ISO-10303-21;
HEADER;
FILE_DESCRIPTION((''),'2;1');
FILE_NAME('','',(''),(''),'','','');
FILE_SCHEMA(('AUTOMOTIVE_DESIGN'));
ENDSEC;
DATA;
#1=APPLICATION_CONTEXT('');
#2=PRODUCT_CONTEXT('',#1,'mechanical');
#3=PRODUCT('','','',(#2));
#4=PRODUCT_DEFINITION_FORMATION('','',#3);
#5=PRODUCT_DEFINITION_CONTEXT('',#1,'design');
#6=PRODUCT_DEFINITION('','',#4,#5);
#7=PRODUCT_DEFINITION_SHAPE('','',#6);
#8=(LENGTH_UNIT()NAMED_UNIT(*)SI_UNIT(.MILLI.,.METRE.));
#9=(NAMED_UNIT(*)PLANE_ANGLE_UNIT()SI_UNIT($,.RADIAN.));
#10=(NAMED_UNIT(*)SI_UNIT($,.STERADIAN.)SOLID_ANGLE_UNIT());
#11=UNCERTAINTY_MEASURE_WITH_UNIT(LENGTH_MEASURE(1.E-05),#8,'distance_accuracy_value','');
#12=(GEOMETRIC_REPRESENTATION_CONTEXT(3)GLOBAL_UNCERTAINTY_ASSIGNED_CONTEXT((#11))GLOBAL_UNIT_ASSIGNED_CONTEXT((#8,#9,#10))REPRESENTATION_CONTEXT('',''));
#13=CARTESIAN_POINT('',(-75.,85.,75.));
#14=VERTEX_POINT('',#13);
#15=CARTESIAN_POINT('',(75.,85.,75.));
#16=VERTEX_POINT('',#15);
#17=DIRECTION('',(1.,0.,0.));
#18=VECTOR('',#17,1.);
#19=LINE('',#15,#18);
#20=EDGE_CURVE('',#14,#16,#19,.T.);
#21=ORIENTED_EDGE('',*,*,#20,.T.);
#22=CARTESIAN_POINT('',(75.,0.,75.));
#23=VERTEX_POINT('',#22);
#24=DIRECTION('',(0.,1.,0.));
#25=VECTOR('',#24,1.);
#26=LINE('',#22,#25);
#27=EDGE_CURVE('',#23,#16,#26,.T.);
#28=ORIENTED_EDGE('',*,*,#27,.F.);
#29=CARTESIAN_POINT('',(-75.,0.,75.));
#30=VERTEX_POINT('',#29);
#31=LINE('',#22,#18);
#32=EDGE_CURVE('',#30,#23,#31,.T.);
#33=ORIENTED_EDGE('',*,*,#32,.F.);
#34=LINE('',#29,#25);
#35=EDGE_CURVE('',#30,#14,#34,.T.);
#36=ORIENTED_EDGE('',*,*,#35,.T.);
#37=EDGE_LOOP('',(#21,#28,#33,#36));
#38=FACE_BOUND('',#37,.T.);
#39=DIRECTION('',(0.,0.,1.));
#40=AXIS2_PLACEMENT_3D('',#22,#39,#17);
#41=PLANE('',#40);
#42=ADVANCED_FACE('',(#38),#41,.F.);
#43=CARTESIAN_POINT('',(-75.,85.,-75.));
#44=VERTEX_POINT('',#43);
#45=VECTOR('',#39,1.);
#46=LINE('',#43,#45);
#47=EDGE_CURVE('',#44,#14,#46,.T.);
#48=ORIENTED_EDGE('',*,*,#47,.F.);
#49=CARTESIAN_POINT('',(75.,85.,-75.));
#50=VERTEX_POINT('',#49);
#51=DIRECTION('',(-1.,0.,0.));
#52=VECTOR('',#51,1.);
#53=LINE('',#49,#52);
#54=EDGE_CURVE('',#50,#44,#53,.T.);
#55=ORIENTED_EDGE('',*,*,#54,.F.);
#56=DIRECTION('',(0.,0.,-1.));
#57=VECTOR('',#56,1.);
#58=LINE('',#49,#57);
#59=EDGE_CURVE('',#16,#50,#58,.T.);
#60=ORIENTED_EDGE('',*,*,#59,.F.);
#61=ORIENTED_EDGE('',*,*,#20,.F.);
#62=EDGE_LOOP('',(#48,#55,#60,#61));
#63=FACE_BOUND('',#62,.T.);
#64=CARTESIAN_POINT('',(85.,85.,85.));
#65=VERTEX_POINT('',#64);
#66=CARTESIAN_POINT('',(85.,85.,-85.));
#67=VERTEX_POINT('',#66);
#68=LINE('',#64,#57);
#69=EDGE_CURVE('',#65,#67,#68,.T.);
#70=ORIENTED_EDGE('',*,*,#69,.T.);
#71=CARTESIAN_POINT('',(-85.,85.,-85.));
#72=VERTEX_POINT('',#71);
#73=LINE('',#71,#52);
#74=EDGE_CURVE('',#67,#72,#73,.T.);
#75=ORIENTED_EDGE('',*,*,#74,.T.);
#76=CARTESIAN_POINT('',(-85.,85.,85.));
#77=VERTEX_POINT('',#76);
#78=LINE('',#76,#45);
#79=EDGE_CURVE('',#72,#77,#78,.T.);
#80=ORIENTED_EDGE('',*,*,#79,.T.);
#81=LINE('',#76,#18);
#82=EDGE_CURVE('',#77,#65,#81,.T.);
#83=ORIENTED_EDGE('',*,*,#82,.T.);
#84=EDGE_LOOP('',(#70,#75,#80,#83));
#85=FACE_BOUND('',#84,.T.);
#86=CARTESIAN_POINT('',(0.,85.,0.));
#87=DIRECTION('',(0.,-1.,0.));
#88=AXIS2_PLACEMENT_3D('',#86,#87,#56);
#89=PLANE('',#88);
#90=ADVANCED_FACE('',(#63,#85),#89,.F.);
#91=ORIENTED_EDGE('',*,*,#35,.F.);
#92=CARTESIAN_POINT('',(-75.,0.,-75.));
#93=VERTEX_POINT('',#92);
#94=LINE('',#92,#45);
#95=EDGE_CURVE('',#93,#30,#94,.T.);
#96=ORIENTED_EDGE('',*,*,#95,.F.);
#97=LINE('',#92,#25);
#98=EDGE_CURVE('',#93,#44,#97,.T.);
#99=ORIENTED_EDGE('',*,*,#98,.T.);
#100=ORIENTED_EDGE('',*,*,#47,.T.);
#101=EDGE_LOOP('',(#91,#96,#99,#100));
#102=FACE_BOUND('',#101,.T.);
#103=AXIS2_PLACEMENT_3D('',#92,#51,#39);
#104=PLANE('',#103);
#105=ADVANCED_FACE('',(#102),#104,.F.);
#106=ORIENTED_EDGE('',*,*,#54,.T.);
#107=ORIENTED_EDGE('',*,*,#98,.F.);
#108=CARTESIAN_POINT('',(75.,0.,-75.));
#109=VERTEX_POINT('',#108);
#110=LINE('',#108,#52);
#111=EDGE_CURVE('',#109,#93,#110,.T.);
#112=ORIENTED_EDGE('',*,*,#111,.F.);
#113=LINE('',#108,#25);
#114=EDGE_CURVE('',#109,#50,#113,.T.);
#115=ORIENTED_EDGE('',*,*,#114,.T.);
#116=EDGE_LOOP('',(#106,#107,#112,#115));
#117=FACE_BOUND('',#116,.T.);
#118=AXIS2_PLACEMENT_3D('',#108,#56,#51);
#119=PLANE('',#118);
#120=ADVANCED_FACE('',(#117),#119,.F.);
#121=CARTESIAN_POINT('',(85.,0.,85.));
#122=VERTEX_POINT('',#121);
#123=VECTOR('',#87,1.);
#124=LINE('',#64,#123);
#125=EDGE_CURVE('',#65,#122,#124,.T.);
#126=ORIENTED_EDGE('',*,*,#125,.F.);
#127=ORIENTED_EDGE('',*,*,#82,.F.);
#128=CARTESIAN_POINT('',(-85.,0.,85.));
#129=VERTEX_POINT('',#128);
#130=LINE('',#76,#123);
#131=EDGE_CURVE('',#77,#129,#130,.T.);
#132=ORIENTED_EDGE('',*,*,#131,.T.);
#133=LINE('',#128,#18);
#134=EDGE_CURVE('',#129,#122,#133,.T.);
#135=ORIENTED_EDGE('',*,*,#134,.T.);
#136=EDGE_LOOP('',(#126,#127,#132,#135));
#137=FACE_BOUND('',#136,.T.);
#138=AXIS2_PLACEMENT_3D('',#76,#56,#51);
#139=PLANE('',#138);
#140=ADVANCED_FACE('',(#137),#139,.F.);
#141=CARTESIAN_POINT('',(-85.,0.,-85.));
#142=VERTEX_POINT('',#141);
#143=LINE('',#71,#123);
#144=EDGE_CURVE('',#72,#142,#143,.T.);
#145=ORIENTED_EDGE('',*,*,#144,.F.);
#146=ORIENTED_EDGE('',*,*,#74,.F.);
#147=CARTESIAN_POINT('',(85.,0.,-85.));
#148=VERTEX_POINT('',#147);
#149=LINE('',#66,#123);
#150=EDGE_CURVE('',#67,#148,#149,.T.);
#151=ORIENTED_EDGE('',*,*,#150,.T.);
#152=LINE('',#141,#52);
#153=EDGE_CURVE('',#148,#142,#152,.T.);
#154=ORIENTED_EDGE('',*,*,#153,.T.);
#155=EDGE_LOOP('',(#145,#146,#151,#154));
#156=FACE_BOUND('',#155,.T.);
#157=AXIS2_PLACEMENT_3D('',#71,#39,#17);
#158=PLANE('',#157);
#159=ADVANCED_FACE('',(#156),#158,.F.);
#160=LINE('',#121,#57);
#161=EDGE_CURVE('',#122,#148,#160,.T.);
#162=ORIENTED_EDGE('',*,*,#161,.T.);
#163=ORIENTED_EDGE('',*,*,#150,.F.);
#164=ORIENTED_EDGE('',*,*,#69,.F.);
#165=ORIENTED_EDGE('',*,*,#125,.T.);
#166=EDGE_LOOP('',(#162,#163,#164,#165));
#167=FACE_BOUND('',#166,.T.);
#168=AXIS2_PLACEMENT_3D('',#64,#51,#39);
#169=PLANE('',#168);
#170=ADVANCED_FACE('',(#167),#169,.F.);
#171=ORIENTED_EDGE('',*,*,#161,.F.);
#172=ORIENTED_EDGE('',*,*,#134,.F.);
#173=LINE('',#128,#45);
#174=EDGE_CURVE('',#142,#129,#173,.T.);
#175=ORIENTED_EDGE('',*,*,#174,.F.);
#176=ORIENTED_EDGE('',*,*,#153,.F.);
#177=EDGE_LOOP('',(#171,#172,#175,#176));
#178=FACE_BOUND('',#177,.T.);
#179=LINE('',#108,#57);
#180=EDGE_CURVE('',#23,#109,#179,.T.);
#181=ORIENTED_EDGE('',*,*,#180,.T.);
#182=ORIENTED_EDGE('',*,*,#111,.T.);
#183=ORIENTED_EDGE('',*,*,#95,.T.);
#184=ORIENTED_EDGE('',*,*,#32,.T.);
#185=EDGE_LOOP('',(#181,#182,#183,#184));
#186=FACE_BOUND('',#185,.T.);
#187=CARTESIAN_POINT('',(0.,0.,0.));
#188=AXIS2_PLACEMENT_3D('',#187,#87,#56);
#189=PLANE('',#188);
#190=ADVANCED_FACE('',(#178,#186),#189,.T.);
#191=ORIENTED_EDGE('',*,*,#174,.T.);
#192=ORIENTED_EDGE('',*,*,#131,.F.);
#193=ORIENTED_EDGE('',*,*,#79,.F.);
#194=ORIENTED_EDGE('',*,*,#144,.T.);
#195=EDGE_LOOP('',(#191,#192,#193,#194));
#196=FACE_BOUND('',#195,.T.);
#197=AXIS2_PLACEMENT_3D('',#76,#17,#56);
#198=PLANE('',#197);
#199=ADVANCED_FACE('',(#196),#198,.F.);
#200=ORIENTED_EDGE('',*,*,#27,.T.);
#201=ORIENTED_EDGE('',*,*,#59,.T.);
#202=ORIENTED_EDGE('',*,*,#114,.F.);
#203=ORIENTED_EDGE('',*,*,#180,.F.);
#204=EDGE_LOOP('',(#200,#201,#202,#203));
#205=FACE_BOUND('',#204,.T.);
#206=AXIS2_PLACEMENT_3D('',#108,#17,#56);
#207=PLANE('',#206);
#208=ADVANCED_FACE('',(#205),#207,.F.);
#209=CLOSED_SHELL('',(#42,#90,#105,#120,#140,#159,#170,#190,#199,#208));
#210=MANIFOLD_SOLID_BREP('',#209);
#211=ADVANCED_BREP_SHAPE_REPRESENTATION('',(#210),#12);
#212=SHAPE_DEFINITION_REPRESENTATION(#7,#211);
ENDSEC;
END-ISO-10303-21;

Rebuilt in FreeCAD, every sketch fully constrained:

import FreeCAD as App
import Part
import Sketcher

V = App.Vector
Q = App.Units.Quantity

doc = App.newDocument("Part")
body = doc.addObject("PartDesign::Body", "Body")

# Sketch on XZ plane
sketch1 = doc.addObject("Sketcher::SketchObject", "Sketch")
body.addObject(sketch1)
sketch1.AttachmentSupport = (doc.XZ_Plane, [""])
sketch1.MapMode = "FlatFace"
sketch1.addGeometry(Part.LineSegment(V(-85, -85, 0), V(-85, 85, 0)), False)
sketch1.addGeometry(Part.LineSegment(V(-85, 85, 0), V(85, 85, 0)), False)
sketch1.addGeometry(Part.LineSegment(V(85, 85, 0), V(85, -85, 0)), False)
sketch1.addGeometry(Part.LineSegment(V(85, -85, 0), V(-85, -85, 0)), False)
sketch1.addConstraint(Sketcher.Constraint("Coincident", 0, 2, 1, 1))
sketch1.addConstraint(Sketcher.Constraint("Coincident", 1, 2, 2, 1))
sketch1.addConstraint(Sketcher.Constraint("Coincident", 2, 2, 3, 1))
sketch1.addConstraint(Sketcher.Constraint("Coincident", 3, 2, 0, 1))
sketch1.addConstraint(Sketcher.Constraint("Vertical", 0))
sketch1.addConstraint(Sketcher.Constraint("Horizontal", 1))
sketch1.addConstraint(Sketcher.Constraint("Vertical", 2))
sketch1.addConstraint(Sketcher.Constraint("Horizontal", 3))
sketch1.addConstraint(Sketcher.Constraint("Symmetric", 0, 2, 2, 2, -1, 1))
sketch1.addConstraint(Sketcher.Constraint("Equal", 3, 0))
sketch1.addConstraint(Sketcher.Constraint("DistanceX", 1, 1, 1, 2, Q("170 mm")))
pad1 = doc.addObject("PartDesign::Pad", "Pad")
body.addObject(pad1)
pad1.Profile = sketch1
pad1.Length = 85
pad1.Reversed = True

# Sketch on XZ plane
sketch2 = doc.addObject("Sketcher::SketchObject", "Sketch001")
body.addObject(sketch2)
sketch2.AttachmentSupport = (doc.XZ_Plane, [""])
sketch2.MapMode = "FlatFace"
sketch2.AttachmentOffset = App.Placement(V(0, 0, -85), App.Rotation())
sketch2.addGeometry(Part.LineSegment(V(-75, -75, 0), V(-75, 75, 0)), False)
sketch2.addGeometry(Part.LineSegment(V(-75, 75, 0), V(75, 75, 0)), False)
sketch2.addGeometry(Part.LineSegment(V(75, 75, 0), V(75, -75, 0)), False)
sketch2.addGeometry(Part.LineSegment(V(75, -75, 0), V(-75, -75, 0)), False)
sketch2.addConstraint(Sketcher.Constraint("Coincident", 0, 2, 1, 1))
sketch2.addConstraint(Sketcher.Constraint("Coincident", 1, 2, 2, 1))
sketch2.addConstraint(Sketcher.Constraint("Coincident", 2, 2, 3, 1))
sketch2.addConstraint(Sketcher.Constraint("Coincident", 3, 2, 0, 1))
sketch2.addConstraint(Sketcher.Constraint("Vertical", 0))
sketch2.addConstraint(Sketcher.Constraint("Horizontal", 1))
sketch2.addConstraint(Sketcher.Constraint("Vertical", 2))
sketch2.addConstraint(Sketcher.Constraint("Horizontal", 3))
sketch2.addConstraint(Sketcher.Constraint("Symmetric", 0, 2, 2, 2, -1, 1))
sketch2.addConstraint(Sketcher.Constraint("Equal", 3, 0))
sketch2.addConstraint(Sketcher.Constraint("DistanceX", 1, 1, 1, 2, Q("150 mm")))
pocket1 = doc.addObject("PartDesign::Pocket", "Pocket")
body.addObject(pocket1)
pocket1.Profile = sketch2
pocket1.Length = 85
pocket1.Reversed = True

doc.recompute()
